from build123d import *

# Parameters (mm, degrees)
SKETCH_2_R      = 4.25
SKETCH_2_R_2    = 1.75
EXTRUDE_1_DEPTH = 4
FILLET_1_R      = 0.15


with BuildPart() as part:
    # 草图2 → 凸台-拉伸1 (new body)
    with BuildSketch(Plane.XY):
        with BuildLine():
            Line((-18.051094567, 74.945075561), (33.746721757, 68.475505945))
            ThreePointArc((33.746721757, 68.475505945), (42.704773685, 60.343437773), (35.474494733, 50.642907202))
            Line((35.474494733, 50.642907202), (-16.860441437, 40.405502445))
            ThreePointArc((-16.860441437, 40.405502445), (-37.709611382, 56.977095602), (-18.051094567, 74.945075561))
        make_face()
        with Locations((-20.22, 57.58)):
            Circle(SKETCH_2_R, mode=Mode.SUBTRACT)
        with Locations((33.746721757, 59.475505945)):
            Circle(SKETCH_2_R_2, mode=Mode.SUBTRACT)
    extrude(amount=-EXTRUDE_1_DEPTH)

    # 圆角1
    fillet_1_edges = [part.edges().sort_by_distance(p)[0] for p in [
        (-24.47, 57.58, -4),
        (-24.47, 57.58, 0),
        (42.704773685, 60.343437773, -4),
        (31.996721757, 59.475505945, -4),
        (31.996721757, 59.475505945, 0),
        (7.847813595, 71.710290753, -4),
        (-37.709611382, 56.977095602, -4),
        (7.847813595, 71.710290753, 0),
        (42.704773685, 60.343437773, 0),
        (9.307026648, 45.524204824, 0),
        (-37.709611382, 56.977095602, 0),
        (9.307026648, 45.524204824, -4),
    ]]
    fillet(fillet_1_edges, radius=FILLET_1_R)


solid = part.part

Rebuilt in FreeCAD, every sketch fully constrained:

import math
import FreeCAD as App
import Part
import Sketcher
from FreeCAD import Vector


def edges_at(feature, points):
    """Names of the edges that pass closest to the given points."""
    edges = feature.Shape.Edges
    near = lambda p: min(range(len(edges)), key=lambda i: edges[i].distToShape(Part.Vertex(*p))[0])
    return sorted({f"Edge{near(p) + 1}" for p in points})

doc = App.newDocument("Part")
body = doc.addObject("PartDesign::Body", "Body")

sketch1 = body.newObject("Sketcher::SketchObject", "Sketch")
sketch1.AttachmentSupport = (doc.getObject("XY_Plane"), [""])
sketch1.MapMode = "FlatFace"
sketch1.addGeometry([
    Part.LineSegment(Vector(33.7, 68.5, 0), Vector(-18.1, 74.9, 0)),
    Part.ArcOfCircle(Part.Circle(Vector(-20.2, 57.6, 0), Vector(0, 0, 1), 17.5), math.radians(83), math.radians(281)),
    Part.LineSegment(Vector(-16.9, 40.4, 0), Vector(35.5, 50.6, 0)),
    Part.ArcOfCircle(Part.Circle(Vector(33.7, 59.5, 0), Vector(0, 0, 1), 9), math.radians(-79), math.radians(90)),
    Part.Circle(Vector(33.7, 59.5, 0), Vector(0, 0, 1), 1.8),
    Part.Circle(Vector(-20.2, 57.6, 0), Vector(0, 0, 1), 4.2),
], False)
sketch1.addConstraint([
    Sketcher.Constraint("Tangent", 0, 2, 1, 1),
    Sketcher.Constraint("Tangent", 1, 2, 2, 1),
    Sketcher.Constraint("Tangent", 2, 2, 3, 1),
    Sketcher.Constraint("Coincident", 3, 2, 0, 1),
    Sketcher.Constraint("Coincident", 4, 3, 3, 3),
    Sketcher.Constraint("Coincident", 5, 3, 1, 3),
    Sketcher.Constraint("Vertical", 4, 3, 3, 2),
    Sketcher.Constraint("Radius", 3, 9.0),
    Sketcher.Constraint("Diameter", 4, 3.5),
    Sketcher.Constraint("Diameter", 5, 8.5),
    Sketcher.Constraint("Radius", 1, 17.5),
    Sketcher.Constraint("DistanceX", 1, 3, -1, 1, 20.22),
    Sketcher.Constraint("DistanceY", -1, 1, 1, 3, 57.58),
    Sketcher.Constraint("DistanceY", 2, 2, 3, 3, 8.832599),
    Sketcher.Constraint("Distance", 0, 52.200279),
])
pad1 = body.newObject("PartDesign::Pad", "Pad")
pad1.Profile = sketch1
pad1.Length = 4
pad1.Reversed = True
doc.recompute()

fillet = body.newObject("PartDesign::Fillet", "Fillet")
fillet.Base = (pad1, edges_at(pad1, [
    (-24.47, 57.58, -4),
    (-24.47, 57.58, 0),
    (42.705, 60.343, -4),
    (31.997, 59.476, -4),
    (31.997, 59.476, 0),
    (7.848, 71.71, -4),
    (-37.71, 56.977, -4),
    (7.848, 71.71, 0),
    (42.705, 60.343, 0),
    (9.307, 45.524, 0),
    (-37.71, 56.977, 0),
    (9.307, 45.524, -4),
]))
fillet.Radius = 0.15

doc.recompute()
